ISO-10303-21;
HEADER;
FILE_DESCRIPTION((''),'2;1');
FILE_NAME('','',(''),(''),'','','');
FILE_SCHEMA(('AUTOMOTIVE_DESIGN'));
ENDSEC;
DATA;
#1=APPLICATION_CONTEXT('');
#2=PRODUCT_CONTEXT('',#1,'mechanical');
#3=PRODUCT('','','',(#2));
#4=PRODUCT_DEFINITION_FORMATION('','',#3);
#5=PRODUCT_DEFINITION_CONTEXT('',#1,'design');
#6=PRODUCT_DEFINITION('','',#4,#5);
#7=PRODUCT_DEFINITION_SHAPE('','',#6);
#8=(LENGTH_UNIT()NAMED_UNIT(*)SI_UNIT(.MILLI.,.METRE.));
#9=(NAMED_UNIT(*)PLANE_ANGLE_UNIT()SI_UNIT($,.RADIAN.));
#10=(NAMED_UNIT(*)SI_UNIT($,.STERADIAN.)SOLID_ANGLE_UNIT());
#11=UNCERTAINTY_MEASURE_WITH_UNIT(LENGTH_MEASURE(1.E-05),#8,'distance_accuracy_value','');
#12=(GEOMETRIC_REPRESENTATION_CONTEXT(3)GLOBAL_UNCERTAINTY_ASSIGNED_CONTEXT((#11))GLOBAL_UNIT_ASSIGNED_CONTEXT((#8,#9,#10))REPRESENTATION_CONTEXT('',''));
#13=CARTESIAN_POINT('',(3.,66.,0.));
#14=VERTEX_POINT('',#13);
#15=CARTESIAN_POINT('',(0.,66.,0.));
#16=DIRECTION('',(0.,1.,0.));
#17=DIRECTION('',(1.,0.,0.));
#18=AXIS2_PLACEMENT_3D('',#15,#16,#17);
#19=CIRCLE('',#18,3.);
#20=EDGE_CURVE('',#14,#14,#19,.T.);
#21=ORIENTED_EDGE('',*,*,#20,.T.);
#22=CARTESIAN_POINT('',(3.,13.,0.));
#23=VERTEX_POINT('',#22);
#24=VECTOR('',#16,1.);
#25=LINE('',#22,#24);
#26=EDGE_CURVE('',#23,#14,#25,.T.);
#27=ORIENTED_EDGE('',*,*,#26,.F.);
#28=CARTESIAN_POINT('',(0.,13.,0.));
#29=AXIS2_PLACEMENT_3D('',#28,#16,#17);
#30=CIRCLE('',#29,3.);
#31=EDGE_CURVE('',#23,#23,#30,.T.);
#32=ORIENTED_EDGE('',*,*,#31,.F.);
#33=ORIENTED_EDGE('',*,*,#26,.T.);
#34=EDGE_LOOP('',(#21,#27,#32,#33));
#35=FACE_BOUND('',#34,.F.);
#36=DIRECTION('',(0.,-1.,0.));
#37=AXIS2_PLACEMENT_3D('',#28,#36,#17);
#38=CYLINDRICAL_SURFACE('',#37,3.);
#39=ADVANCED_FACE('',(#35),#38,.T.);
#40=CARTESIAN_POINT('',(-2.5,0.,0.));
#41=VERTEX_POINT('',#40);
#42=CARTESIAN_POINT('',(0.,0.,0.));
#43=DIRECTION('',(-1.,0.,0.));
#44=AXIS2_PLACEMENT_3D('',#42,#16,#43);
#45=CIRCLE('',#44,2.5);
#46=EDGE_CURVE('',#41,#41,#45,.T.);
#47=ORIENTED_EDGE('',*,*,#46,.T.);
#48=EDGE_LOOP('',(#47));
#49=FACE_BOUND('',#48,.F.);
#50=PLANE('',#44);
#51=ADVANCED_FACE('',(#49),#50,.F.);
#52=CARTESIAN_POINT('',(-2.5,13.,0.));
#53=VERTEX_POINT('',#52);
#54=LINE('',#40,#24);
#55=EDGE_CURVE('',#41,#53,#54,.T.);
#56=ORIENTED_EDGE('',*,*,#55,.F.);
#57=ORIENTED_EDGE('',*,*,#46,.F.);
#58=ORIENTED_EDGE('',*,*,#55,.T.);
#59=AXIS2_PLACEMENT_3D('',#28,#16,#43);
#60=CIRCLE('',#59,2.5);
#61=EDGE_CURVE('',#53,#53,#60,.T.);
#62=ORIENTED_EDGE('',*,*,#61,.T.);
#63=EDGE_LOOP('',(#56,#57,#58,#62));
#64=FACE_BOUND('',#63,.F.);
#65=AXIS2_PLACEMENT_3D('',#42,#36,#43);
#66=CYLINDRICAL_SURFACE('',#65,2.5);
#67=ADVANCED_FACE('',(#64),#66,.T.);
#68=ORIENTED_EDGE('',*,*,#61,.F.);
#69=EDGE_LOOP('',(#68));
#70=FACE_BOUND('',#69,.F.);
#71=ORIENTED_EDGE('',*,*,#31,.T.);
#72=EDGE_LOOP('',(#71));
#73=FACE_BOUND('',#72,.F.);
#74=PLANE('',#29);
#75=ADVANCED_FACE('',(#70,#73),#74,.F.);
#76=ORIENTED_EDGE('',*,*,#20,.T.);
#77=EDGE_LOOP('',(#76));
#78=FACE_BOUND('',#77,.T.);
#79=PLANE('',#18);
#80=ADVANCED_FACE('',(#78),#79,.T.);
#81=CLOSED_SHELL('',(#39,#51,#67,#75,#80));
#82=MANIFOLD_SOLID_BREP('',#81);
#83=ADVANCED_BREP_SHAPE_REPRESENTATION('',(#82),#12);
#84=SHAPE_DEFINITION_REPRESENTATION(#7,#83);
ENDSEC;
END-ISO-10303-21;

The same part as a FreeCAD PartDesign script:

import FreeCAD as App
import Part
import Sketcher

V = App.Vector
Q = App.Units.Quantity

doc = App.newDocument("Part")
params = doc.addObject("Spreadsheet::Sheet", "Params")
for row, (alias, value) in enumerate([
    ("sketch1_diameter", "5 mm"),
    ("pad1_length", "13 mm"),
    ("sketch2_diameter", "6 mm"),
    ("pad2_length", "53 mm"),
], start=1):
    params.set(f"A{row}", alias)
    params.set(f"B{row}", "=" + value)
    params.setAlias(f"B{row}", alias)

body = doc.addObject("PartDesign::Body", "Body")

# Sketch on XZ plane
sketch1 = body.newObject("Sketcher::SketchObject", "Sketch")
sketch1.AttachmentSupport = (doc.getObject("XZ_Plane"), [""])
sketch1.MapMode = "FlatFace"
sketch1.addGeometry(Part.Circle(V(0, 0, 0), V(0, 0, 1), 2.5), False)
sketch1.addConstraint([
    Sketcher.Constraint("Coincident", 0, 3, -1, 1),
    Sketcher.Constraint("Diameter", 0, Q("5 mm")),
])
sketch1.setExpression("Constraints[1]", "Params.sketch1_diameter")
pad1 = body.newObject("PartDesign::Pad", "Pad")
pad1.Profile = sketch1
pad1.setExpression("Length", "Params.pad1_length")
pad1.Reversed = True

# Sketch on XZ plane
sketch2 = body.newObject("Sketcher::SketchObject", "Sketch001")
sketch2.AttachmentSupport = (doc.getObject("XZ_Plane"), [""])
sketch2.MapMode = "FlatFace"
sketch2.AttachmentOffset = App.Placement(V(0, 0, -13), App.Rotation())
sketch2.addGeometry(Part.Circle(V(0, 0, 0), V(0, 0, 1), 3), False)
sketch2.addConstraint([
    Sketcher.Constraint("Coincident", 0, 3, -1, 1),
    Sketcher.Constraint("Diameter", 0, Q("6 mm")),
])
sketch2.setExpression("Constraints[1]", "Params.sketch2_diameter")
pad2 = body.newObject("PartDesign::Pad", "Pad001")
pad2.Profile = sketch2
pad2.setExpression("Length", "Params.pad2_length")
pad2.Reversed = True

doc.recompute()
